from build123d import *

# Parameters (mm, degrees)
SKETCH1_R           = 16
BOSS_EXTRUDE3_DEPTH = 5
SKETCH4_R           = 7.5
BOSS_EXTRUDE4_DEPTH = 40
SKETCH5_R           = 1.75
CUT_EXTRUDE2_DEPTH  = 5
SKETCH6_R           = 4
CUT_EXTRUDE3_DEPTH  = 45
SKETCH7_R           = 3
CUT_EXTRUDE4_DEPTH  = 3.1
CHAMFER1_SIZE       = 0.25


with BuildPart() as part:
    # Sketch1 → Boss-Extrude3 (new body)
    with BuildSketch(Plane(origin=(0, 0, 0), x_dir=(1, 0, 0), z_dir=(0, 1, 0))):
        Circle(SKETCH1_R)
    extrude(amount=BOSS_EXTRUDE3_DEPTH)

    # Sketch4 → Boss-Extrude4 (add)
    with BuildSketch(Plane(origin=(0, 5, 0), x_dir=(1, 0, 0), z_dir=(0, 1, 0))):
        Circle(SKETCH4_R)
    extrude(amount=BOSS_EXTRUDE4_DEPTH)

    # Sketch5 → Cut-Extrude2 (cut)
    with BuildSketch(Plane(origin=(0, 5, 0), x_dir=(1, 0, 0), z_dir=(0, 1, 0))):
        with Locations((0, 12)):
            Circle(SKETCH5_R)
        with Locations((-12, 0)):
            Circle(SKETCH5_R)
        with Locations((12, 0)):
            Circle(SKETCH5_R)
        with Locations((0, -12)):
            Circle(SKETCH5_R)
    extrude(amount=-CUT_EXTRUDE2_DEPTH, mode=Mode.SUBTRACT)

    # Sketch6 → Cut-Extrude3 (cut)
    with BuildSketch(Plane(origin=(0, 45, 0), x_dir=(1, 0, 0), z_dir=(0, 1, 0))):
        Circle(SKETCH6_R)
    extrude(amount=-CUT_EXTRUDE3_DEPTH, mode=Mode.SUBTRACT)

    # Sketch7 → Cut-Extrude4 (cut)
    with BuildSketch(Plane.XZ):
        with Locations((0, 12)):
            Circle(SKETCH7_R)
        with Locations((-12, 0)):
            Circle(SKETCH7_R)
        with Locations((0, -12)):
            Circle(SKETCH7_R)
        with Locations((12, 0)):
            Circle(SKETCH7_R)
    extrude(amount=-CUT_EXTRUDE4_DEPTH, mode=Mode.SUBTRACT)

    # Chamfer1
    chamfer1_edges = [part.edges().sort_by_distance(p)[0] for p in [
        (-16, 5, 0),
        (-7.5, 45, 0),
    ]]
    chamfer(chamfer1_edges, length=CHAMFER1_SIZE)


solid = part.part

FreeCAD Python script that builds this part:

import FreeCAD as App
import Part
import Sketcher
from FreeCAD import Vector


def edges_at(feature, points):
    """Names of the edges that pass closest to the given points."""
    edges = feature.Shape.Edges
    near = lambda p: min(range(len(edges)), key=lambda i: edges[i].distToShape(Part.Vertex(*p))[0])
    return sorted({f"Edge{near(p) + 1}" for p in points})

doc = App.newDocument("Part")
body = doc.addObject("PartDesign::Body", "Body")

# Sketch on XZ plane
sketch1 = body.newObject("Sketcher::SketchObject", "Sketch")
sketch1.AttachmentSupport = (doc.getObject("XZ_Plane"), [""])
sketch1.MapMode = "FlatFace"
sketch1.addGeometry(Part.Circle(Vector(0, 0, 0), Vector(0, 0, 1), 16), False)
sketch1.addConstraint([
    Sketcher.Constraint("Coincident", 0, 3, -1, 1),
    Sketcher.Constraint("Diameter", 0, 32.0),
])
pad1 = body.newObject("PartDesign::Pad", "Pad")
pad1.Profile = sketch1
pad1.Length = 5
pad1.Reversed = True

# Sketch on XZ plane
sketch2 = body.newObject("Sketcher::SketchObject", "Sketch001")
sketch2.AttachmentSupport = (doc.getObject("XZ_Plane"), [""])
sketch2.MapMode = "FlatFace"
sketch2.AttachmentOffset = App.Placement(Vector(0, 0, -5), App.Rotation())
sketch2.addGeometry(Part.Circle(Vector(0, 0, 0), Vector(0, 0, 1), 8), False)
sketch2.addConstraint([
    Sketcher.Constraint("Coincident", 0, 3, -1, 1),
    Sketcher.Constraint("Diameter", 0, 15.0),
])
pad2 = body.newObject("PartDesign::Pad", "Pad001")
pad2.Profile = sketch2
pad2.Length = 40
pad2.Reversed = True

# Sketch on XZ plane
sketch3 = body.newObject("Sketcher::SketchObject", "Sketch002")
sketch3.AttachmentSupport = (doc.getObject("XZ_Plane"), [""])
sketch3.MapMode = "FlatFace"
sketch3.AttachmentOffset = App.Placement(Vector(0, 0, -5), App.Rotation())
sketch3.addGeometry([
    Part.Circle(Vector(0, -12, 0), Vector(0, 0, 1), 1.8),
    Part.Circle(Vector(-12, 0, 0), Vector(0, 0, 1), 1.8),
    Part.Circle(Vector(12, 0, 0), Vector(0, 0, 1), 1.8),
    Part.Circle(Vector(0, 12, 0), Vector(0, 0, 1), 1.8),
], False)
sketch3.addConstraint([
    Sketcher.Constraint("Equal", 0, 1),
    Sketcher.Constraint("Equal", 1, 2),
    Sketcher.Constraint("Equal", 2, 3),
    Sketcher.Constraint("Symmetric", 1, 3, 2, 3, -1, 1),
    Sketcher.Constraint("Symmetric", 0, 3, 3, 3, -1, 1),
    Sketcher.Constraint("PointOnObject", 0, 3, -2),
    Sketcher.Constraint("PointOnObject", 1, 3, -1),
    Sketcher.Constraint("Diameter", 0, 3.5),
    Sketcher.Constraint("DistanceY", 0, 3, -1, 1, 12.0),
    Sketcher.Constraint("DistanceX", 1, 3, -1, 1, 12.0),
])
pocket1 = body.newObject("PartDesign::Pocket", "Pocket")
pocket1.Profile = sketch3
pocket1.Length = 5
pocket1.Reversed = True

# Sketch on XZ plane
sketch4 = body.newObject("Sketcher::SketchObject", "Sketch003")
sketch4.AttachmentSupport = (doc.getObject("XZ_Plane"), [""])
sketch4.MapMode = "FlatFace"
sketch4.AttachmentOffset = App.Placement(Vector(0, 0, -45), App.Rotation())
sketch4.addGeometry(Part.Circle(Vector(0, 0, 0), Vector(0, 0, 1), 4), False)
sketch4.addConstraint([
    Sketcher.Constraint("Coincident", 0, 3, -1, 1),
    Sketcher.Constraint("Diameter", 0, 8.0),
])
pocket2 = body.newObject("PartDesign::Pocket", "Pocket001")
pocket2.Profile = sketch4
pocket2.Length = 45
pocket2.Reversed = True

# Sketch on XZ plane
sketch5 = body.newObject("Sketcher::SketchObject", "Sketch004")
sketch5.AttachmentSupport = (doc.getObject("XZ_Plane"), [""])
sketch5.MapMode = "FlatFace"
sketch5.addGeometry([
    Part.Circle(Vector(0, 12, 0), Vector(0, 0, 1), 3),
    Part.Circle(Vector(-12, 0, 0), Vector(0, 0, 1), 3),
    Part.Circle(Vector(0, -12, 0), Vector(0, 0, 1), 3),
    Part.Circle(Vector(12, 0, 0), Vector(0, 0, 1), 3),
], False)
sketch5.addConstraint([
    Sketcher.Constraint("Equal", 0, 1),
    Sketcher.Constraint("Equal", 1, 2),
    Sketcher.Constraint("Equal", 2, 3),
    Sketcher.Constraint("Symmetric", 0, 3, 2, 3, -1, 1),
    Sketcher.Constraint("Symmetric", 1, 3, 3, 3, -1, 1),
    Sketcher.Constraint("PointOnObject", 0, 3, -2),
    Sketcher.Constraint("PointOnObject", 1, 3, -1),
    Sketcher.Constraint("Diameter", 0, 6.0),
    Sketcher.Constraint("DistanceY", -1, 1, 0, 3, 12.0),
    Sketcher.Constraint("DistanceX", 1, 3, -1, 1, 12.0),
])
pocket3 = body.newObject("PartDesign::Pocket", "Pocket002")
pocket3.Profile = sketch5
pocket3.Length = 3.1
doc.recompute()

chamfer = body.newObject("PartDesign::Chamfer", "Chamfer")
chamfer.Base = (pocket3, edges_at(pocket3, [(-16, 5, 0), (-7.5, 45, 0)]))
chamfer.Size = 0.25

doc.recompute()
